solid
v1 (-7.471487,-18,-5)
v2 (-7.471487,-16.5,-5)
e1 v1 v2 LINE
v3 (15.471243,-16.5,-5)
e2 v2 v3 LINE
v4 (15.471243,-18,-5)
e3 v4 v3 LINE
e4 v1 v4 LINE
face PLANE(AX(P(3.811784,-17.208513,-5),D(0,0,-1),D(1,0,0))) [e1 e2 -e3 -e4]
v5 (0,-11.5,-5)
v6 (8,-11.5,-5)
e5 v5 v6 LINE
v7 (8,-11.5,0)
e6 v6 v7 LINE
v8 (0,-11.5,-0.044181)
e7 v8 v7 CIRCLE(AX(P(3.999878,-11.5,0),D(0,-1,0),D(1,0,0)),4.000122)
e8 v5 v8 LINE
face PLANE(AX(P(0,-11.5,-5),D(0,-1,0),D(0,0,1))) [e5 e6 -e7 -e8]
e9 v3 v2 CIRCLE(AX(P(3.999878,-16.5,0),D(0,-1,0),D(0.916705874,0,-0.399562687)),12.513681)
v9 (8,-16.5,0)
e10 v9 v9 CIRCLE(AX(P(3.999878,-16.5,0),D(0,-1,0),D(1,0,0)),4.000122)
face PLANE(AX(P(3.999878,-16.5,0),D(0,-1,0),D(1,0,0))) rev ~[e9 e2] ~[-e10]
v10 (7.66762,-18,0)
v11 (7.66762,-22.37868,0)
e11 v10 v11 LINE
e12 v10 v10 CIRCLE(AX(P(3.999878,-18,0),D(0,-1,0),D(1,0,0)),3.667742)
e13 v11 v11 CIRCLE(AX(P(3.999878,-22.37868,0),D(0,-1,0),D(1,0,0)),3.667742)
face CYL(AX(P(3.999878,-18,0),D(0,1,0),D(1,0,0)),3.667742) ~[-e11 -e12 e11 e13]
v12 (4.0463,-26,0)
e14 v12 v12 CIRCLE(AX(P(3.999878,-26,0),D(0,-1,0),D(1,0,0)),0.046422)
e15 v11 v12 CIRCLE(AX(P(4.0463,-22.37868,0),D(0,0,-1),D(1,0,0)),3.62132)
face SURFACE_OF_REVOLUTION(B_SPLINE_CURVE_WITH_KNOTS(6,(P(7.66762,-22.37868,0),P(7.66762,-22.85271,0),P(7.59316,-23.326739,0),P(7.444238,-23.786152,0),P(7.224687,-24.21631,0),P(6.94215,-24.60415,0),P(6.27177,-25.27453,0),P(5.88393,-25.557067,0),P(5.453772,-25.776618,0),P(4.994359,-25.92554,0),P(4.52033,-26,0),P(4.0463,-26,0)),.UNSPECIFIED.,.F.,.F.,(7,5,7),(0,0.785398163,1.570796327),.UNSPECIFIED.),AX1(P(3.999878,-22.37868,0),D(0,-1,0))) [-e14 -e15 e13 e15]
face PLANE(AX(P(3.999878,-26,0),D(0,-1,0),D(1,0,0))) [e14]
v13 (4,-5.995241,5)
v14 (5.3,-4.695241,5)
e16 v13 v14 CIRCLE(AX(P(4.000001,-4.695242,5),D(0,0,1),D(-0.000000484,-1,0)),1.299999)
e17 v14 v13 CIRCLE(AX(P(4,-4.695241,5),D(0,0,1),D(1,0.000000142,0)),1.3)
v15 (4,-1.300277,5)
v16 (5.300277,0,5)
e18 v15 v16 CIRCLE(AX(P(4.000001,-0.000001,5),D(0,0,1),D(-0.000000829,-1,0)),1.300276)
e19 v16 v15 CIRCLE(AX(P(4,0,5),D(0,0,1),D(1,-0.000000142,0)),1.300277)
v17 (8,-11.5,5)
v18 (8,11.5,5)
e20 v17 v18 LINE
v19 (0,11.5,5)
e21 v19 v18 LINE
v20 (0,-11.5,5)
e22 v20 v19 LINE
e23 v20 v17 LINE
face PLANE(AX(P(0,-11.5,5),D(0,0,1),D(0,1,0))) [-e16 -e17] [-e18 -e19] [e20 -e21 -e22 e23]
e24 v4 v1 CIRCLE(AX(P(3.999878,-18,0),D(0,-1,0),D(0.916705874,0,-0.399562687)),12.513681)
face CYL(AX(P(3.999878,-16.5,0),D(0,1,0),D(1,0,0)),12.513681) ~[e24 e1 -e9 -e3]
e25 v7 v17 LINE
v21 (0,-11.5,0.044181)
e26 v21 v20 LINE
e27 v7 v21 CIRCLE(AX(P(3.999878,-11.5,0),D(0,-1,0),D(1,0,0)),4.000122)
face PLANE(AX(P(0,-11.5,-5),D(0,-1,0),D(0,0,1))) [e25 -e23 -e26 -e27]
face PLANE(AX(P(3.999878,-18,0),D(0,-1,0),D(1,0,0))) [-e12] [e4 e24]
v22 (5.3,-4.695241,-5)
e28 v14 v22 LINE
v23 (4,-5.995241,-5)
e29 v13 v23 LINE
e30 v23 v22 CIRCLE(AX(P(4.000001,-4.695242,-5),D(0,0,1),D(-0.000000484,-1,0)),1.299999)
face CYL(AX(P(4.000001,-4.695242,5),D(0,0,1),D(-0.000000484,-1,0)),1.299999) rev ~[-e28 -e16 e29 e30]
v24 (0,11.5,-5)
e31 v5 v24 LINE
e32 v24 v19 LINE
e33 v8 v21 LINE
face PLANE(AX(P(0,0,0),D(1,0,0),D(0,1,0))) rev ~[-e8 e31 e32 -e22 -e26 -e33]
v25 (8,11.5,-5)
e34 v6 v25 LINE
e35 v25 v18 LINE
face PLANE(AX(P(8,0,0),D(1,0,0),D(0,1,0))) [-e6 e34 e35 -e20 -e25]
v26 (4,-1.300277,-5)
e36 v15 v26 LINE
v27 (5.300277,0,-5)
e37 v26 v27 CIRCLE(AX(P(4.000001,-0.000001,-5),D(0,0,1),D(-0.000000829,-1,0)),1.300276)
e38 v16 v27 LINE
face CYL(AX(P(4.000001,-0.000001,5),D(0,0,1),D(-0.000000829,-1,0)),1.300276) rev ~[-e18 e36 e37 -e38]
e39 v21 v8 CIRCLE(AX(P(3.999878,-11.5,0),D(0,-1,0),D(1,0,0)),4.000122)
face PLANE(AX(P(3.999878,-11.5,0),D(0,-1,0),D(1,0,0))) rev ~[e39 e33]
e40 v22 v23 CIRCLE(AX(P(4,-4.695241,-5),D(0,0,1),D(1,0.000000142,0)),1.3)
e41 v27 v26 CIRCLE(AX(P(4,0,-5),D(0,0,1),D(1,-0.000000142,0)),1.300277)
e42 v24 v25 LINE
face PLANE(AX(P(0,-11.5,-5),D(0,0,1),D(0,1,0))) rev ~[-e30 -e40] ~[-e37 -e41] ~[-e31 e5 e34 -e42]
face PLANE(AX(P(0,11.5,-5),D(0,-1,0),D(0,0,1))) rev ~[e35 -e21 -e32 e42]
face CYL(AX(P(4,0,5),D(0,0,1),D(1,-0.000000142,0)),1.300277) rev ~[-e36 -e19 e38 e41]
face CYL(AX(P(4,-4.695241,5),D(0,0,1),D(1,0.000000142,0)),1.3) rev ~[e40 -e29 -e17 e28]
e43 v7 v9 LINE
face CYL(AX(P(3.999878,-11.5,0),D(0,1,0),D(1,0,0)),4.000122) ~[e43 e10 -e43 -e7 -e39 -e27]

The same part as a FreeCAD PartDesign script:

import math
import FreeCAD as App
import Part
import Sketcher

V = App.Vector


def edges_at(feature, points):
    """Names of the edges that pass closest to the given points."""
    edges = feature.Shape.Edges
    near = lambda p: min(range(len(edges)), key=lambda i: edges[i].distToShape(Part.Vertex(*p))[0])
    return sorted({f"Edge{near(p) + 1}" for p in points})


def add_polygon(sketch, points):
    """Adds a closed chain of lines whose ends are joined by coincident constraints."""
    first, n = sketch.GeometryCount, len(points)
    for a, b in zip(points, points[1:] + points[:1]):
        sketch.addGeometry(Part.LineSegment(App.Vector(*a, 0), App.Vector(*b, 0)), False)
    for i in range(n):
        sketch.addConstraint(Sketcher.Constraint("Coincident", first + i, 2, first + (i + 1) % n, 1))

doc = App.newDocument("Part")
body = doc.addObject("PartDesign::Body", "Body")

# Sketch on YZ plane
sketch1 = body.newObject("Sketcher::SketchObject", "Sketch")
sketch1.AttachmentSupport = (doc.getObject("YZ_Plane"), [""])
sketch1.MapMode = "FlatFace"
add_polygon(sketch1, [(-12, 5), (-12, -5), (12, -5), (12, 5)])  # lines 0-3
sketch1.addConstraint([
    Sketcher.Constraint("Vertical", 0),
    Sketcher.Constraint("Horizontal", 1),
    Sketcher.Constraint("Vertical", 2),
    Sketcher.Constraint("Horizontal", 3),
    Sketcher.Constraint("Symmetric", 0, 2, 2, 2, -1, 1),
    Sketcher.Constraint("DistanceX", 1, 1, 1, 2, 23.0),
    Sketcher.Constraint("DistanceY", 0, 2, 0, 1, 10.0),
])
pad1 = body.newObject("PartDesign::Pad", "Pad")
pad1.Profile = sketch1
pad1.Length = 8

# Sketch on XZ plane
sketch2 = body.newObject("Sketcher::SketchObject", "Sketch001")
sketch2.AttachmentSupport = (doc.getObject("XZ_Plane"), [""])
sketch2.MapMode = "FlatFace"
sketch2.AttachmentOffset = App.Placement(V(0, 0, 11.5), App.Rotation())
sketch2.addGeometry(Part.Circle(V(4, 0, 0), V(0, 0, 1), 4), False)
sketch2.addConstraint([
    Sketcher.Constraint("PointOnObject", 0, 3, -1),
    Sketcher.Constraint("Diameter", 0, 8.000244),
    Sketcher.Constraint("DistanceX", -1, 1, 0, 3, 3.999878),
])
pad2 = body.newObject("PartDesign::Pad", "Pad001")
pad2.Profile = sketch2
pad2.Length = 5

# Sketch on XZ plane
sketch3 = body.newObject("Sketcher::SketchObject", "Sketch002")
sketch3.AttachmentSupport = (doc.getObject("XZ_Plane"), [""])
sketch3.MapMode = "FlatFace"
sketch3.AttachmentOffset = App.Placement(V(0, 0, 16.5), App.Rotation())
sketch3.addGeometry(Part.Circle(V(4, 0, 0), V(0, 0, 1), 13), False)
sketch3.addConstraint([
    Sketcher.Constraint("PointOnObject", 0, 3, -1),
    Sketcher.Constraint("Diameter", 0, 25.027362),
    Sketcher.Constraint("DistanceX", -1, 1, 0, 3, 3.999878),
])
pad3 = body.newObject("PartDesign::Pad", "Pad002")
pad3.Profile = sketch3
pad3.Length = 1.5

# Sketch on XZ plane
sketch4 = body.newObject("Sketcher::SketchObject", "Sketch003")
sketch4.AttachmentSupport = (doc.getObject("XZ_Plane"), [""])
sketch4.MapMode = "FlatFace"
sketch4.AttachmentOffset = App.Placement(V(0, 0, 18), App.Rotation())
sketch4.addGeometry(Part.Circle(V(4, 0, 0), V(0, 0, 1), 3.7), False)
sketch4.addConstraint([
    Sketcher.Constraint("PointOnObject", 0, 3, -1),
    Sketcher.Constraint("Diameter", 0, 7.335484),
    Sketcher.Constraint("DistanceX", -1, 1, 0, 3, 3.999878),
])
pad4 = body.newObject("PartDesign::Pad", "Pad003")
pad4.Profile = sketch4
pad4.Length = 8
doc.recompute()

fillet = body.newObject("PartDesign::Fillet", "Fillet")
fillet.Base = (pad4, edges_at(pad4, [(0.332, -26, 0)]))
fillet.Radius = 3.62132

# Sketch on XY plane
sketch5 = body.newObject("Sketcher::SketchObject", "Sketch004")
sketch5.AttachmentSupport = (doc.getObject("XY_Plane"), [""])
sketch5.MapMode = "FlatFace"
sketch5.AttachmentOffset = App.Placement(V(0, 0, 5), App.Rotation())
sketch5.addGeometry([
    Part.ArcOfCircle(Part.Circle(V(4, 0, 0), V(0, 0, 1), 1.3), math.radians(-90), math.radians(0)),
    Part.ArcOfCircle(Part.Circle(V(4, 0, 0), V(0, 0, 1), 1.3), math.radians(0), math.radians(270)),
], False)
sketch5.addConstraint([
    Sketcher.Constraint("Tangent", 0, 1, 1, 2),
    Sketcher.Constraint("Coincident", 1, 1, 0, 2),
    Sketcher.Constraint("PointOnObject", 0, 3, -1),
    Sketcher.Constraint("PointOnObject", 1, 1, -1),
    Sketcher.Constraint("Vertical", 1, 3, 0, 1),
    Sketcher.Constraint("DistanceX", -1, 1, 0, 3, 4.000001),
    Sketcher.Constraint("Radius", 0, 1.300276),
])
pocket1 = body.newObject("PartDesign::Pocket", "Pocket")
pocket1.Profile = sketch5
pocket1.Length = 25

# Sketch on XY plane
sketch6 = body.newObject("Sketcher::SketchObject", "Sketch005")
sketch6.AttachmentSupport = (doc.getObject("XY_Plane"), [""])
sketch6.MapMode = "FlatFace"
sketch6.AttachmentOffset = App.Placement(V(0, 0, 5), App.Rotation())
sketch6.addGeometry([
    Part.ArcOfCircle(Part.Circle(V(4, -4.7, 0), V(0, 0, 1), 1.3), math.radians(-90), math.radians(0)),
    Part.ArcOfCircle(Part.Circle(V(4, -4.7, 0), V(0, 0, 1), 1.3), math.radians(0), math.radians(270)),
], False)
sketch6.addConstraint([
    Sketcher.Constraint("Tangent", 0, 1, 1, 2),
    Sketcher.Constraint("Coincident", 1, 1, 0, 2),
    Sketcher.Constraint("Horizontal", 0, 3, 1, 1),
    Sketcher.Constraint("Vertical", 1, 3, 0, 1),
    Sketcher.Constraint("Radius", 0, 1.299999),
    Sketcher.Constraint("DistanceX", -1, 1, 0, 3, 4.000001),
    Sketcher.Constraint("DistanceY", 0, 3, -1, 1, 4.695242),
])
pocket2 = body.newObject("PartDesign::Pocket", "Pocket001")
pocket2.Profile = sketch6
pocket2.Length = 25

# Sketch on XY plane
sketch7 = body.newObject("Sketcher::SketchObject", "Sketch006")
sketch7.AttachmentSupport = (doc.getObject("XY_Plane"), [""])
sketch7.MapMode = "FlatFace"
sketch7.AttachmentOffset = App.Placement(V(0, 0, -5), App.Rotation())
add_polygon(sketch7, [(-10, -20), (-10, -14), (18, -14), (18, -20)])  # lines 0-3
sketch7.addConstraint([
    Sketcher.Constraint("Vertical", 0),
    Sketcher.Constraint("Horizontal", 1),
    Sketcher.Constraint("Vertical", 2),
    Sketcher.Constraint("Horizontal", 3),
    Sketcher.Constraint("DistanceX", 1, 1, 1, 2, 28.555372),
    Sketcher.Constraint("DistanceY", 0, 1, 0, 2, 6.345639),
    Sketcher.Constraint("DistanceX", -1, 1, 1, 2, 18.08947),
    Sketcher.Constraint("DistanceY", 0, 2, -1, 1, 14.035694),
])
pocket3 = body.newObject("PartDesign::Pocket", "Pocket002")
pocket3.Profile = sketch7
pocket3.Length = 9.5

doc.recompute()
